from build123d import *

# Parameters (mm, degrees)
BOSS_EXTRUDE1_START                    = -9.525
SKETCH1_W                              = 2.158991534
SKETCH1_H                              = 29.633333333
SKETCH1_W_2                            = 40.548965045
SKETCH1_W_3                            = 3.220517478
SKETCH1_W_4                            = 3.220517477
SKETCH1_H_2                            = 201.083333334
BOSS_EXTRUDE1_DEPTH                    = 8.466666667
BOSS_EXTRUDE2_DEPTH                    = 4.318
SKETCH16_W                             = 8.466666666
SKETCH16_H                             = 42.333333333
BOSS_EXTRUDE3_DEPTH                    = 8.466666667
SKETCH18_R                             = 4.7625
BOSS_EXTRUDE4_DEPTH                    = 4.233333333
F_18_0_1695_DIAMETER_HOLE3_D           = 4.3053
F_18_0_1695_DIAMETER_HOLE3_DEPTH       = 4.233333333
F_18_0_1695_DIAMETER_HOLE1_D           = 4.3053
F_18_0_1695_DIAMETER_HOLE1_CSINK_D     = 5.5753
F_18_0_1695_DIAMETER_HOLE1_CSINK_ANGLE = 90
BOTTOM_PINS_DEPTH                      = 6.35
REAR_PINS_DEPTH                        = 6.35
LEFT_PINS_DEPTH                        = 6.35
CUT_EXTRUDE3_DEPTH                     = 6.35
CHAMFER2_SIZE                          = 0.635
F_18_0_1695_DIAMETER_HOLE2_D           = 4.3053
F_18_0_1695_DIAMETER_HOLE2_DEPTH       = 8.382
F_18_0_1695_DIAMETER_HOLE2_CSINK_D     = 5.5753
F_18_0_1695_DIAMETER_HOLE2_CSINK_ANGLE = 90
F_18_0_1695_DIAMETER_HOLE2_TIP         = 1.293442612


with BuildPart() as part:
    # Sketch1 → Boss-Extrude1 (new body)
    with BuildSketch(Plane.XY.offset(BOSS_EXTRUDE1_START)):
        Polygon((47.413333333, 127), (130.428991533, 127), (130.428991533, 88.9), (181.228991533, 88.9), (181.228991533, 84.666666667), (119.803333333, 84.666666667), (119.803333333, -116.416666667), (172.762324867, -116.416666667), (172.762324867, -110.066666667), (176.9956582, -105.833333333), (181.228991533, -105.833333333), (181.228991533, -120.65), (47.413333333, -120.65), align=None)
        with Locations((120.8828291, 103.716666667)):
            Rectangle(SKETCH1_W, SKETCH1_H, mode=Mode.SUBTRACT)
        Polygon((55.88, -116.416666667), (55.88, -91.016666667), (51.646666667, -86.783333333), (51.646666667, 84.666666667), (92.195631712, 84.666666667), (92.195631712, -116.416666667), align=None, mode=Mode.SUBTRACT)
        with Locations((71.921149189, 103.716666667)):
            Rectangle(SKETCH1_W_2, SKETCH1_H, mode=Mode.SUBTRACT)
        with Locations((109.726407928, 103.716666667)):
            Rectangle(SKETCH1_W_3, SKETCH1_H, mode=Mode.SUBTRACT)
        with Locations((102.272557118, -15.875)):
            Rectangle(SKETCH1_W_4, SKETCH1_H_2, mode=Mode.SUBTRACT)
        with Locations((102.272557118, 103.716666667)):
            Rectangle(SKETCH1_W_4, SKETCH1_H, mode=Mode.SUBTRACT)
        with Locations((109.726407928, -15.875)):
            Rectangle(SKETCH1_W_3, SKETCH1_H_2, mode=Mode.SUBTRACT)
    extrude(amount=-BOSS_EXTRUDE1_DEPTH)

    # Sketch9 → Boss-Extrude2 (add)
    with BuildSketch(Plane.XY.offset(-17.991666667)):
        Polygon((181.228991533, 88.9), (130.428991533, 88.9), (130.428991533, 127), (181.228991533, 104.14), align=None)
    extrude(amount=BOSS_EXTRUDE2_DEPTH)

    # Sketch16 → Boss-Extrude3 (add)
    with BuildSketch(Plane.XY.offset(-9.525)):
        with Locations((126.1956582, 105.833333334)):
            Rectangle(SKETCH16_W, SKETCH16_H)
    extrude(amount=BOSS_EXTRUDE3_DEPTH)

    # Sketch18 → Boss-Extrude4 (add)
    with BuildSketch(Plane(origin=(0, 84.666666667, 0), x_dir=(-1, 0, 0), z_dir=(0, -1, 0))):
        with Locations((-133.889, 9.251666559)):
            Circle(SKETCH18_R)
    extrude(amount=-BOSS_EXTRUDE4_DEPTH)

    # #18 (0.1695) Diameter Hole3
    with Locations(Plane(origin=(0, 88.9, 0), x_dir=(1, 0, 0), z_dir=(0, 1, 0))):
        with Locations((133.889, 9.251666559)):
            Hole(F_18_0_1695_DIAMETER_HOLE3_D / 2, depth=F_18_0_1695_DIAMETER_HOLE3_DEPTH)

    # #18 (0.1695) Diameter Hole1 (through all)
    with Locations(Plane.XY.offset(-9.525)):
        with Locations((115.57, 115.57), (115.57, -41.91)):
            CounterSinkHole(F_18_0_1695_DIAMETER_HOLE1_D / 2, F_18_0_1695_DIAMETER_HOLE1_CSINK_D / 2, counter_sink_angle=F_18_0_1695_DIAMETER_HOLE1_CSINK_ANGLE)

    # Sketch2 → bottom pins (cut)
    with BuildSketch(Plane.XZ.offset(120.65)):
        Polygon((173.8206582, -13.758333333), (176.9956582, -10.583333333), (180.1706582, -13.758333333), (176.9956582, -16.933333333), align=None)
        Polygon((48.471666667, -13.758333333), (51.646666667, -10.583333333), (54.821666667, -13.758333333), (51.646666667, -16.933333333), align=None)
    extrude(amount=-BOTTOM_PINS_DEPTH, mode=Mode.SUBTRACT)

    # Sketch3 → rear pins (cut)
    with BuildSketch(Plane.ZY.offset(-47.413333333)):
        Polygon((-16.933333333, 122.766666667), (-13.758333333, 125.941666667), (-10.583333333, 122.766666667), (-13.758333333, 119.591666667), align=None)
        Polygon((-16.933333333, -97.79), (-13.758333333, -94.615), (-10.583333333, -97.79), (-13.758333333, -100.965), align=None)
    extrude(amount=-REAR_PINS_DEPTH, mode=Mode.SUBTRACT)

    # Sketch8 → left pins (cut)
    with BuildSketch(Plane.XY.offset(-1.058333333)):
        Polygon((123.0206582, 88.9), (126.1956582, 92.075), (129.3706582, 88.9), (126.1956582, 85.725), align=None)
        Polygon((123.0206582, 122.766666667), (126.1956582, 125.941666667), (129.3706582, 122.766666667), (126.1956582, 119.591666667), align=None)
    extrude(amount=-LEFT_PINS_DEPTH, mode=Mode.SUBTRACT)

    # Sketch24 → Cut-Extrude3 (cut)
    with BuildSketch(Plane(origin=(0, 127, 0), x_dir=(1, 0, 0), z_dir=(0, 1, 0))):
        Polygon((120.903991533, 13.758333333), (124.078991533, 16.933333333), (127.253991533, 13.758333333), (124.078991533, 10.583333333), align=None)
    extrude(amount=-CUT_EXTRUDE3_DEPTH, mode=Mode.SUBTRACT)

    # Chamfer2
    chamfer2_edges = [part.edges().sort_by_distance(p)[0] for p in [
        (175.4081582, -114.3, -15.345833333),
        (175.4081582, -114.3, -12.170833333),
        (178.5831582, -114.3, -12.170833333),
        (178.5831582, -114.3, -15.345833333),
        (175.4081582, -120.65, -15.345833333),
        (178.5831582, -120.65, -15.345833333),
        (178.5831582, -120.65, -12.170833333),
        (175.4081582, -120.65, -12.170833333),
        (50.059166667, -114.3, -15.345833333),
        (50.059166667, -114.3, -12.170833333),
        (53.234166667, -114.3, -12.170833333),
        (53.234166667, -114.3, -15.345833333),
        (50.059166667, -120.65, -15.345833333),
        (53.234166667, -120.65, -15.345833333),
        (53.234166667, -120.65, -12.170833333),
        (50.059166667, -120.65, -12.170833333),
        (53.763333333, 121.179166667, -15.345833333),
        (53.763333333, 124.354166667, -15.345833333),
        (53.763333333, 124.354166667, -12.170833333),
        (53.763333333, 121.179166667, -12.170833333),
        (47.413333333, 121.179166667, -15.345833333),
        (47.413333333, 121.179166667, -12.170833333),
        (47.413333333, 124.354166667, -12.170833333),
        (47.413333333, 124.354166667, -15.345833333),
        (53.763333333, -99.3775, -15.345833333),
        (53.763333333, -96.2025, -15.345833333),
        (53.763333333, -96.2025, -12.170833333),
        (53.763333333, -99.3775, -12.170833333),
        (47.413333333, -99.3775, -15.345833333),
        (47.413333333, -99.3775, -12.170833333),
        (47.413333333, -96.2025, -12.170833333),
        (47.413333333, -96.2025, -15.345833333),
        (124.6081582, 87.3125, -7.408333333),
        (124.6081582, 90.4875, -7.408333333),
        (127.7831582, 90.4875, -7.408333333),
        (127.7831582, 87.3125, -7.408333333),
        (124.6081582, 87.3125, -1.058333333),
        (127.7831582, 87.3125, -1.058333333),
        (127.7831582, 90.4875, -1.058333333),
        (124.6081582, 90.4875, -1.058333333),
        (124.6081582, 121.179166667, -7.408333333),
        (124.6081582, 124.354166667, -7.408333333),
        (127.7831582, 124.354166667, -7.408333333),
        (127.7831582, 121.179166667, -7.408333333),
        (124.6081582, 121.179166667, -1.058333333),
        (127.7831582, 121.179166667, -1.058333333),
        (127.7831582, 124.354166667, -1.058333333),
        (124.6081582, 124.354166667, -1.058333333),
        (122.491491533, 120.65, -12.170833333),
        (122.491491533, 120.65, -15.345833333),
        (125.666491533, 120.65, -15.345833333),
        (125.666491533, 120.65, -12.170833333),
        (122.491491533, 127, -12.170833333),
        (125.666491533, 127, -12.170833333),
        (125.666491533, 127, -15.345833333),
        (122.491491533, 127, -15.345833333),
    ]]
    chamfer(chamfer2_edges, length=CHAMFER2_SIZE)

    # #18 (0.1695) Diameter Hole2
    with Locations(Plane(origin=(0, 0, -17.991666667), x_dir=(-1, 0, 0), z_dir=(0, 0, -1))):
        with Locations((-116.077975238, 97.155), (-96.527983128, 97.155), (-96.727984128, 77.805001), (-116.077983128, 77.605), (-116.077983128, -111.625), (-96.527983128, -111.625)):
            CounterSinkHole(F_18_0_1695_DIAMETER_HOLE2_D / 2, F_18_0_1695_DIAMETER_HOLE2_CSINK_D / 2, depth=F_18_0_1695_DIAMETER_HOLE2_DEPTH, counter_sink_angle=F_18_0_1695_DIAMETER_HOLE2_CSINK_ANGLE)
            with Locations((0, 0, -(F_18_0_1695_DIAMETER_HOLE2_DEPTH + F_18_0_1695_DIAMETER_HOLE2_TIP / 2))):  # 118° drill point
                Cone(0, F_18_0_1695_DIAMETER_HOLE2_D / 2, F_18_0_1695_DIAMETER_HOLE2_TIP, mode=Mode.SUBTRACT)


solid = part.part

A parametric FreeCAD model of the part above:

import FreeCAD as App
import Part
import Sketcher
Q = App.Units.Quantity


def edges_at(feature, points):
    """Names of the edges that pass closest to the given points."""
    edges = feature.Shape.Edges
    near = lambda p: min(range(len(edges)), key=lambda i: edges[i].distToShape(Part.Vertex(*p))[0])
    return sorted({f"Edge{near(p) + 1}" for p in points})


def add_polygon(sketch, points):
    """Adds a closed chain of lines whose ends are joined by coincident constraints."""
    first, n = sketch.GeometryCount, len(points)
    for a, b in zip(points, points[1:] + points[:1]):
        sketch.addGeometry(Part.LineSegment(App.Vector(*a, 0), App.Vector(*b, 0)), False)
    for i in range(n):
        sketch.addConstraint(Sketcher.Constraint("Coincident", first + i, 2, first + (i + 1) % n, 1))

doc = App.newDocument("Part")
body = doc.addObject("PartDesign::Body", "Body")

# Sketch on XY plane
sketch1 = body.newObject("Sketcher::SketchObject", "Sketch")
sketch1.AttachmentSupport = (doc.getObject("XY_Plane"), [""])
sketch1.MapMode = "FlatFace"
sketch1.AttachmentOffset = App.Placement(App.Vector(0, 0, -0.375 * 25.4), App.Rotation())
add_polygon(sketch1, [(130.4, 127), (47.4, 127), (47.4, -120.7), (181.2, -120.7), (181.2, -105.8), (177, -105.8), (172.8, -110.1), (172.8, -116.4), (119.8, -116.4), (119.8, 84.7), (181.2, 84.7), (181.2, 88.9), (130.4, 88.9)])  # lines 0-12
add_polygon(sketch1, [(108.1, -116.4), (108.1, 84.7), (111.3, 84.7), (111.3, -116.4)])  # lines 13-16
add_polygon(sketch1, [(100.7, -116.4), (100.7, 84.7), (103.9, 84.7), (103.9, -116.4)])  # lines 17-20
add_polygon(sketch1, [(55.9, -116.4), (55.9, -91), (51.6, -86.8), (51.6, 84.7), (92.2, 84.7), (92.2, -116.4)])  # lines 21-26
add_polygon(sketch1, [(119.8, 88.9), (119.8, 118.5), (122, 118.5), (122, 88.9)])  # lines 27-30
add_polygon(sketch1, [(108.1, 88.9), (108.1, 118.5), (111.3, 118.5), (111.3, 88.9)])  # lines 31-34
add_polygon(sketch1, [(100.7, 88.9), (100.7, 118.5), (103.9, 118.5), (103.9, 88.9)])  # lines 35-38
add_polygon(sketch1, [(51.6, 88.9), (51.6, 118.5), (92.2, 118.5), (92.2, 88.9)])  # lines 39-42
sketch1.addConstraint([
    Sketcher.Constraint("Horizontal", 0),
    Sketcher.Constraint("Vertical", 1),
    Sketcher.Constraint("Horizontal", 2),
    Sketcher.Constraint("Vertical", 3),
    Sketcher.Constraint("Horizontal", 4),
    Sketcher.Constraint("Vertical", 6),
    Sketcher.Constraint("Horizontal", 7),
    Sketcher.Constraint("Vertical", 8),
    Sketcher.Constraint("Horizontal", 9),
    Sketcher.Constraint("Vertical", 10),
    Sketcher.Constraint("Horizontal", 11),
    Sketcher.Constraint("Vertical", 12),
    Sketcher.Constraint("Vertical", 13),
    Sketcher.Constraint("Horizontal", 14),
    Sketcher.Constraint("Vertical", 15),
    Sketcher.Constraint("Horizontal", 16),
    Sketcher.Constraint("Vertical", 17),
    Sketcher.Constraint("Horizontal", 18),
    Sketcher.Constraint("Vertical", 19),
    Sketcher.Constraint("Horizontal", 20),
    Sketcher.Constraint("Vertical", 21),
    Sketcher.Constraint("Vertical", 23),
    Sketcher.Constraint("Horizontal", 24),
    Sketcher.Constraint("Vertical", 25),
    Sketcher.Constraint("Horizontal", 26),
    Sketcher.Constraint("Vertical", 27),
    Sketcher.Constraint("Horizontal", 28),
    Sketcher.Constraint("Vertical", 29),
    Sketcher.Constraint("Horizontal", 30),
    Sketcher.Constraint("Vertical", 31),
    Sketcher.Constraint("Horizontal", 32),
    Sketcher.Constraint("Vertical", 33),
    Sketcher.Constraint("Horizontal", 34),
    Sketcher.Constraint("Vertical", 35),
    Sketcher.Constraint("Horizontal", 36),
    Sketcher.Constraint("Vertical", 37),
    Sketcher.Constraint("Horizontal", 38),
    Sketcher.Constraint("Vertical", 39),
    Sketcher.Constraint("Horizontal", 40),
    Sketcher.Constraint("Vertical", 41),
    Sketcher.Constraint("Horizontal", 42),
    Sketcher.Constraint("Perpendicular", 5, 22),
    Sketcher.Constraint("Horizontal", 9, 2, 13, 2),
    Sketcher.Constraint("Horizontal", 7, 2, 15, 2),
    Sketcher.Constraint("Horizontal", 14, 2, 17, 2),
    Sketcher.Constraint("Horizontal", 16, 2, 19, 2),
    Sketcher.Constraint("Horizontal", 18, 2, 23, 2),
    Sketcher.Constraint("Horizontal", 20, 2, 25, 2),
    Sketcher.Constraint("Horizontal", 11, 2, 29, 2),
    Sketcher.Constraint("Horizontal", 28, 2, 31, 2),
    Sketcher.Constraint("Horizontal", 30, 2, 33, 2),
    Sketcher.Constraint("Horizontal", 32, 2, 35, 2),
    Sketcher.Constraint("Horizontal", 34, 2, 37, 2),
    Sketcher.Constraint("Horizontal", 36, 2, 39, 2),
    Sketcher.Constraint("Horizontal", 38, 2, 41, 2),
    Sketcher.Constraint("Vertical", 3, 2, 9, 2),
    Sketcher.Constraint("Vertical", 8, 2, 27, 2),
    Sketcher.Constraint("Vertical", 16, 2, 31, 2),
    Sketcher.Constraint("Vertical", 15, 2, 32, 2),
    Sketcher.Constraint("Vertical", 20, 2, 35, 2),
    Sketcher.Constraint("Vertical", 19, 2, 36, 2),
    Sketcher.Constraint("Vertical", 23, 2, 39, 2),
    Sketcher.Constraint("Vertical", 25, 2, 40, 2),
    Sketcher.Constraint("Equal", 16, 18),
    Sketcher.Constraint("Equal", 4, 10),
    Sketcher.Constraint("Equal", 5, 22),
    Sketcher.Constraint("DistanceX", 11, 2, 11, 1, Q("2 in")),
    Sketcher.Constraint("DistanceY", 21, 1, 21, 2, Q("1 in")),
    Sketcher.Constraint("DistanceY", 12, 1, 12, 2, Q("1.5 in")),
    Sketcher.Constraint("DistanceY", -1, 1, 0, 2, Q("5 in")),
    Sketcher.Constraint("Angle", 5, Q("-135 deg")),
    Sketcher.Constraint("DistanceY", 1, 2, 1, 1, Q("9.75 in")),
    Sketcher.Constraint("DistanceY", 6, 2, 6, 1, Q("0.25 in")),
    Sketcher.Constraint("DistanceY", 23, 1, 23, 2, Q("6.75 in")),
    Sketcher.Constraint("DistanceX", -1, 1, 21, 2, Q("2.2 in")),
    Sketcher.Constraint("DistanceX", 0, 2, 8, 2, Q("2.85 in")),
    Sketcher.Constraint("DistanceX", 23, 2, 14, 2, Q("2.35 in")),
    Sketcher.Constraint("DistanceX", 0, 2, 0, 1, Q("83.015658 mm")),
    Sketcher.Constraint("DistanceX", 7, 2, 7, 1, Q("52.958992 mm")),
    Sketcher.Constraint("DistanceX", 26, 2, 26, 1, Q("36.315632 mm")),
    Sketcher.Constraint("DistanceX", 28, 1, 28, 2, Q("2.158992 mm")),
    Sketcher.Constraint("DistanceX", -1, 1, 17, 2, Q("100.662298 mm")),
    Sketcher.Constraint("DistanceX", 24, 2, 8, 2, Q("27.607702 mm")),
    Sketcher.Constraint("DistanceX", 4, 2, 4, 1, Q("4.233333 mm")),
    Sketcher.Constraint("DistanceX", 14, 1, 14, 2, Q("3.220517 mm")),
    Sketcher.Constraint("DistanceY", 27, 1, 27, 2, Q("29.633333 mm")),
])
pad1 = body.newObject("PartDesign::Pad", "Pad")
pad1.Profile = sketch1
pad1.Length = 8.466667
pad1.Reversed = True

# Sketch on XY plane
sketch2 = body.newObject("Sketcher::SketchObject", "Sketch001")
sketch2.AttachmentSupport = (doc.getObject("XY_Plane"), [""])
sketch2.MapMode = "FlatFace"
sketch2.AttachmentOffset = App.Placement(App.Vector(0, 0, -17.991667), App.Rotation())
add_polygon(sketch2, [(130, 89), (181, 89), (181, 104), (130, 127)])  # lines 0-3
sketch2.addConstraint([
    Sketcher.Constraint("Horizontal", 0),
    Sketcher.Constraint("Vertical", 1),
    Sketcher.Constraint("Vertical", 3),
    Sketcher.Constraint("DistanceX", 0, 1, 0, 2, Q("2 in")),
    Sketcher.Constraint("DistanceY", 1, 1, 1, 2, Q("0.6 in")),
    Sketcher.Constraint("DistanceY", 3, 2, 3, 1, Q("1.5 in")),
    Sketcher.Constraint("DistanceY", -1, 1, 2, 2, Q("5 in")),
    Sketcher.Constraint("DistanceX", -1, 1, 0, 2, Q("181.228992 mm")),
])
pad2 = body.newObject("PartDesign::Pad", "Pad001")
pad2.Profile = sketch2
pad2.Length = Q("0.17 in")

# Sketch on XY plane
sketch3 = body.newObject("Sketcher::SketchObject", "Sketch002")
sketch3.AttachmentSupport = (doc.getObject("XY_Plane"), [""])
sketch3.MapMode = "FlatFace"
sketch3.AttachmentOffset = App.Placement(App.Vector(0, 0, -0.375 * 25.4), App.Rotation())
add_polygon(sketch3, [(122, 127), (122, 85), (130, 85), (130, 127)])  # lines 0-3
sketch3.addConstraint([
    Sketcher.Constraint("Vertical", 0),
    Sketcher.Constraint("Horizontal", 1),
    Sketcher.Constraint("Vertical", 2),
    Sketcher.Constraint("Horizontal", 3),
    Sketcher.Constraint("DistanceY", -1, 1, 2, 2, Q("5 in")),
    Sketcher.Constraint("DistanceX", 1, 1, 1, 2, Q("8.466667 mm")),
    Sketcher.Constraint("DistanceY", 0, 2, 0, 1, Q("42.333333 mm")),
    Sketcher.Constraint("DistanceX", -1, 1, 1, 2, Q("130.428992 mm")),
])
pad3 = body.newObject("PartDesign::Pad", "Pad002")
pad3.Profile = sketch3
pad3.Length = 8.466667

# Sketch on XZ plane
sketch4 = body.newObject("Sketcher::SketchObject", "Sketch003")
sketch4.AttachmentSupport = (doc.getObject("XZ_Plane"), [""])
sketch4.MapMode = "FlatFace"
sketch4.AttachmentOffset = App.Placement(App.Vector(0, 0, -84.666667), App.Rotation())
sketch4.addGeometry(Part.Circle(App.Vector(133.9, -9.3, 0), App.Vector(0, 0, 1), 4.8), False)
sketch4.addConstraint([
    Sketcher.Constraint("Diameter", 0, Q("0.375 in")),
    Sketcher.Constraint("DistanceX", -1, 1, 0, 3, Q("133.889 mm")),
    Sketcher.Constraint("DistanceY", 0, 3, -1, 1, Q("9.251667 mm")),
])
pad4 = body.newObject("PartDesign::Pad", "Pad003")
pad4.Profile = sketch4
pad4.Length = 4.233333
pad4.Reversed = True

# Sketch on XZ plane
sketch5 = body.newObject("Sketcher::SketchObject", "Sketch004")
sketch5.AttachmentSupport = (doc.getObject("XZ_Plane"), [""])
sketch5.MapMode = "FlatFace"
sketch5.AttachmentOffset = App.Placement(App.Vector(0, 0, -3.5 * 25.4), App.Rotation())
sketch5.addGeometry(Part.Circle(App.Vector(133.9, -9.3, 0), App.Vector(0, 0, 1), 2.2), False)
sketch5.addConstraint([
    Sketcher.Constraint("Diameter", 0, Q("0.1695 in")),
    Sketcher.Constraint("DistanceX", -1, 1, 0, 3, Q("133.889 mm")),
    Sketcher.Constraint("DistanceY", 0, 3, -1, 1, Q("9.251667 mm")),
])
doc.recompute()
hole = body.newObject("PartDesign::Hole", "Hole")
hole.Profile = sketch5
hole.ThreadType = "None"
hole.Diameter = Q("0.1695 in")
hole.DepthType = "Dimension"
hole.Depth = 4.233333
hole.DrillPoint = "Flat"
hole.Reversed = True

# Sketch on XY plane
sketch6 = body.newObject("Sketcher::SketchObject", "Sketch005")
sketch6.AttachmentSupport = (doc.getObject("XY_Plane"), [""])
sketch6.MapMode = "FlatFace"
sketch6.AttachmentOffset = App.Placement(App.Vector(0, 0, -0.375 * 25.4), App.Rotation())
sketch6.addGeometry([
    Part.Circle(App.Vector(115.6, 115.6, 0), App.Vector(0, 0, 1), 2.2),
    Part.Circle(App.Vector(115.6, -41.9, 0), App.Vector(0, 0, 1), 2.2),
], False)
sketch6.addConstraint([
    Sketcher.Constraint("Equal", 0, 1),
    Sketcher.Constraint("Vertical", 0, 3, 1, 3),
    Sketcher.Constraint("Diameter", 0, Q("0.1695 in")),
    Sketcher.Constraint("DistanceY", 1, 3, 0, 3, Q("6.2 in")),
    Sketcher.Constraint("DistanceX", -1, 1, 0, 3, Q("4.55 in")),
    Sketcher.Constraint("DistanceY", -1, 1, 0, 3, Q("4.55 in")),
])
doc.recompute()
hole2 = body.newObject("PartDesign::Hole", "Hole001")
hole2.Profile = sketch6
hole2.ThreadType = "None"
hole2.Diameter = Q("0.1695 in")
hole2.DepthType = "ThroughAll"
hole2.HoleCutType = "Countersink"
hole2.HoleCutDiameter = Q("0.2195 in")
hole2.HoleCutCountersinkAngle = 90

# Sketch on XZ plane
sketch7 = body.newObject("Sketcher::SketchObject", "Sketch006")
sketch7.AttachmentSupport = (doc.getObject("XZ_Plane"), [""])
sketch7.MapMode = "FlatFace"
sketch7.AttachmentOffset = App.Placement(App.Vector(0, 0, 4.75 * 25.4), App.Rotation())
add_polygon(sketch7, [(177, -10.6), (173.8, -13.8), (177, -16.9), (180.2, -13.8)])  # lines 0-3
add_polygon(sketch7, [(51.6, -10.6), (48.5, -13.8), (51.6, -16.9), (54.8, -13.8)])  # lines 4-7
sketch7.addConstraint([
    Sketcher.Constraint("Perpendicular", 0, 1),
    Sketcher.Constraint("Perpendicular", 1, 2),
    Sketcher.Constraint("Perpendicular", 2, 3),
    Sketcher.Constraint("Perpendicular", 3, 4),
    Sketcher.Constraint("Perpendicular", 4, 5),
    Sketcher.Constraint("Perpendicular", 5, 6),
    Sketcher.Constraint("Perpendicular", 6, 7),
    Sketcher.Constraint("Horizontal", 0, 2, 2, 2),
    Sketcher.Constraint("Horizontal", 2, 2, 4, 2),
    Sketcher.Constraint("Horizontal", 1, 2, 5, 2),
    Sketcher.Constraint("Horizontal", 4, 2, 6, 2),
    Sketcher.Constraint("Vertical", 1, 2, 3, 2),
    Sketcher.Constraint("DistanceX", 0, 2, 2, 2, Q("0.25 in")),
    Sketcher.Constraint("DistanceX", -1, 1, 0, 2, Q("173.820658 mm")),
    Sketcher.Constraint("DistanceX", 4, 2, 0, 2, Q("125.348992 mm")),
    Sketcher.Constraint("DistanceY", 0, 2, -1, 1, Q("13.758333 mm")),
])
pocket1 = body.newObject("PartDesign::Pocket", "Pocket")
pocket1.Profile = sketch7
pocket1.Length = Q("0.25 in")

# Sketch on YZ plane
sketch8 = body.newObject("Sketcher::SketchObject", "Sketch007")
sketch8.AttachmentSupport = (doc.getObject("YZ_Plane"), [""])
sketch8.MapMode = "FlatFace"
sketch8.AttachmentOffset = App.Placement(App.Vector(0, 0, 47.413333), App.Rotation())
add_polygon(sketch8, [(125.9, -13.8), (122.8, -16.9), (119.6, -13.8), (122.8, -10.6)])  # lines 0-3
add_polygon(sketch8, [(-94.6, -13.8), (-97.8, -16.9), (-101, -13.8), (-97.8, -10.6)])  # lines 4-7
sketch8.addConstraint([
    Sketcher.Constraint("Perpendicular", 0, 1),
    Sketcher.Constraint("Perpendicular", 1, 2),
    Sketcher.Constraint("Perpendicular", 2, 3),
    Sketcher.Constraint("Perpendicular", 3, 4),
    Sketcher.Constraint("Perpendicular", 4, 5),
    Sketcher.Constraint("Perpendicular", 5, 6),
    Sketcher.Constraint("Perpendicular", 6, 7),
    Sketcher.Constraint("Horizontal", 1, 2, 3, 2),
    Sketcher.Constraint("Horizontal", 0, 2, 4, 2),
    Sketcher.Constraint("Horizontal", 3, 2, 5, 2),
    Sketcher.Constraint("Horizontal", 2, 2, 6, 2),
    Sketcher.Constraint("Vertical", 0, 2, 2, 2),
    Sketcher.Constraint("DistanceX", 4, 2, -1, 1, Q("3.85 in")),
    Sketcher.Constraint("DistanceY", 0, 2, 2, 2, Q("0.25 in")),
    Sketcher.Constraint("DistanceX", -1, 1, 0, 2, Q("122.766667 mm")),
    Sketcher.Constraint("DistanceY", 0, 2, -1, 1, Q("16.933333 mm")),
])
pocket2 = body.newObject("PartDesign::Pocket", "Pocket001")
pocket2.Profile = sketch8
pocket2.Length = Q("0.25 in")
pocket2.Reversed = True

# Sketch on XY plane
sketch9 = body.newObject("Sketcher::SketchObject", "Sketch008")
sketch9.AttachmentSupport = (doc.getObject("XY_Plane"), [""])
sketch9.MapMode = "FlatFace"
sketch9.AttachmentOffset = App.Placement(App.Vector(0, 0, -1.058333), App.Rotation())
add_polygon(sketch9, [(126.2, 92.1), (123, 88.9), (126.2, 85.7), (129.4, 88.9)])  # lines 0-3
add_polygon(sketch9, [(126.2, 125.9), (123, 122.8), (126.2, 119.6), (129.4, 122.8)])  # lines 4-7
sketch9.addConstraint([
    Sketcher.Constraint("Perpendicular", 0, 1),
    Sketcher.Constraint("Perpendicular", 1, 2),
    Sketcher.Constraint("Perpendicular", 2, 3),
    Sketcher.Constraint("Perpendicular", 3, 4),
    Sketcher.Constraint("Perpendicular", 4, 5),
    Sketcher.Constraint("Perpendicular", 5, 6),
    Sketcher.Constraint("Perpendicular", 6, 7),
    Sketcher.Constraint("Horizontal", 0, 2, 2, 2),
    Sketcher.Constraint("Horizontal", 4, 2, 6, 2),
    Sketcher.Constraint("Vertical", 1, 2, 3, 2),
    Sketcher.Constraint("Vertical", 0, 2, 4, 2),
    Sketcher.Constraint("Vertical", 3, 2, 5, 2),
    Sketcher.Constraint("DistanceY", -1, 1, 0, 2, Q("3.5 in")),
    Sketcher.Constraint("DistanceX", 0, 2, 2, 2, Q("0.25 in")),
    Sketcher.Constraint("DistanceX", -1, 1, 0, 2, Q("123.020658 mm")),
    Sketcher.Constraint("DistanceY", -1, 1, 4, 2, Q("122.766667 mm")),
])
pocket3 = body.newObject("PartDesign::Pocket", "Pocket002")
pocket3.Profile = sketch9
pocket3.Length = Q("0.25 in")

# Sketch on XZ plane
sketch10 = body.newObject("Sketcher::SketchObject", "Sketch009")
sketch10.AttachmentSupport = (doc.getObject("XZ_Plane"), [""])
sketch10.MapMode = "FlatFace"
sketch10.AttachmentOffset = App.Placement(App.Vector(0, 0, -5 * 25.4), App.Rotation())
add_polygon(sketch10, [(124.1, -16.9), (120.9, -13.8), (124.1, -10.6), (127.3, -13.8)])  # lines 0-3
sketch10.addConstraint([
    Sketcher.Constraint("Perpendicular", 0, 1),
    Sketcher.Constraint("Perpendicular", 1, 2),
    Sketcher.Constraint("Perpendicular", 2, 3),
    Sketcher.Constraint("Horizontal", 0, 2, 2, 2),
    Sketcher.Constraint("Vertical", 1, 2, 3, 2),
    Sketcher.Constraint("DistanceX", 0, 2, 2, 2, Q("0.25 in")),
    Sketcher.Constraint("DistanceX", -1, 1, 0, 2, Q("120.903992 mm")),
    Sketcher.Constraint("DistanceY", 0, 2, -1, 1, Q("13.758333 mm")),
])
pocket4 = body.newObject("PartDesign::Pocket", "Pocket003")
pocket4.Profile = sketch10
pocket4.Length = Q("0.25 in")
pocket4.Reversed = True
doc.recompute()

chamfer = body.newObject("PartDesign::Chamfer", "Chamfer")
chamfer.Base = (pocket4, edges_at(pocket4, [
    (175.408, -114.3, -15.346),
    (175.408, -114.3, -12.171),
    (178.583, -114.3, -12.171),
    (178.583, -114.3, -15.346),
    (175.408, -120.65, -15.346),
    (178.583, -120.65, -15.346),
    (178.583, -120.65, -12.171),
    (175.408, -120.65, -12.171),
    (50.059, -114.3, -15.346),
    (50.059, -114.3, -12.171),
    (53.234, -114.3, -12.171),
    (53.234, -114.3, -15.346),
    (50.059, -120.65, -15.346),
    (53.234, -120.65, -15.346),
    (53.234, -120.65, -12.171),
    (50.059, -120.65, -12.171),
    (53.763, 121.179, -15.346),
    (53.763, 124.354, -15.346),
    (53.763, 124.354, -12.171),
    (53.763, 121.179, -12.171),
    (47.413, 121.179, -15.346),
    (47.413, 121.179, -12.171),
    (47.413, 124.354, -12.171),
    (47.413, 124.354, -15.346),
    (53.763, -99.377, -15.346),
    (53.763, -96.203, -15.346),
    (53.763, -96.203, -12.171),
    (53.763, -99.377, -12.171),
    (47.413, -99.377, -15.346),
    (47.413, -99.377, -12.171),
    (47.413, -96.203, -12.171),
    (47.413, -96.203, -15.346),
    (124.608, 87.312, -7.408),
    (124.608, 90.487, -7.408),
    (127.783, 90.487, -7.408),
    (127.783, 87.312, -7.408),
    (124.608, 87.312, -1.058),
    (127.783, 87.312, -1.058),
    (127.783, 90.487, -1.058),
    (124.608, 90.487, -1.058),
    (124.608, 121.179, -7.408),
    (124.608, 124.354, -7.408),
    (127.783, 124.354, -7.408),
    (127.783, 121.179, -7.408),
    (124.608, 121.179, -1.058),
    (127.783, 121.179, -1.058),
    (127.783, 124.354, -1.058),
    (124.608, 124.354, -1.058),
    (122.491, 120.65, -12.171),
    (122.491, 120.65, -15.346),
    (125.666, 120.65, -15.346),
    (125.666, 120.65, -12.171),
    (122.491, 127, -12.171),
    (125.666, 127, -12.171),
    (125.666, 127, -15.346),
    (122.491, 127, -15.346),
]))
chamfer.Size = Q("0.025 in")

# Sketch on XY plane
sketch11 = body.newObject("Sketcher::SketchObject", "Sketch010")
sketch11.AttachmentSupport = (doc.getObject("XY_Plane"), [""])
sketch11.MapMode = "FlatFace"
sketch11.AttachmentOffset = App.Placement(App.Vector(0, 0, -17.991667), App.Rotation())
sketch11.addGeometry([
    Part.Circle(App.Vector(116.1, 97.2, 0), App.Vector(0, 0, 1), 2.2),  # 0
    Part.Circle(App.Vector(96.5, 97.2, 0), App.Vector(0, 0, 1), 2.2),  # 1
    Part.Circle(App.Vector(96.7, 77.8, 0), App.Vector(0, 0, 1), 2.2),  # 2
    Part.Circle(App.Vector(116.1, 77.6, 0), App.Vector(0, 0, 1), 2.2),  # 3
    Part.Circle(App.Vector(116.1, -111.6, 0), App.Vector(0, 0, 1), 2.2),  # 4
    Part.Circle(App.Vector(96.5, -111.6, 0), App.Vector(0, 0, 1), 2.2),  # 5
], False)
sketch11.addConstraint([
    Sketcher.Constraint("Equal", 0, 1),
    Sketcher.Constraint("Equal", 1, 2),
    Sketcher.Constraint("Equal", 2, 3),
    Sketcher.Constraint("Equal", 3, 4),
    Sketcher.Constraint("Equal", 4, 5),
    Sketcher.Constraint("Horizontal", 0, 3, 1, 3),
    Sketcher.Constraint("Horizontal", 4, 3, 5, 3),
    Sketcher.Constraint("Vertical", 3, 3, 4, 3),
    Sketcher.Constraint("Vertical", 1, 3, 5, 3),
    Sketcher.Constraint("Diameter", 0, Q("0.1695 in")),
    Sketcher.Constraint("DistanceY", 4, 3, 3, 3, Q("7.45 in")),
    Sketcher.Constraint("DistanceY", -1, 1, 0, 3, Q("3.825 in")),
    Sketcher.Constraint("DistanceY", -1, 1, 2, 3, Q("77.805001 mm")),
    Sketcher.Constraint("DistanceY", -1, 1, 3, 3, Q("77.605 mm")),
    Sketcher.Constraint("DistanceX", 1, 3, 2, 3, Q("0.200001 mm")),
    Sketcher.Constraint("DistanceX", 2, 3, 3, 3, Q("19.349999 mm")),
    Sketcher.Constraint("DistanceX", 2, 3, 0, 3, Q("19.349991 mm")),
    Sketcher.Constraint("DistanceX", -1, 1, 0, 3, Q("116.077975 mm")),
])
doc.recompute()
hole3 = body.newObject("PartDesign::Hole", "Hole002")
hole3.Profile = sketch11
hole3.ThreadType = "None"
hole3.Diameter = Q("0.1695 in")
hole3.DepthType = "Dimension"
hole3.Depth = Q("0.33 in")
hole3.DrillPoint = "Angled"
hole3.DrillPointAngle = 118
hole3.HoleCutType = "Countersink"
hole3.HoleCutDiameter = Q("0.2195 in")
hole3.HoleCutCountersinkAngle = 90
hole3.Reversed = True

doc.recompute()
